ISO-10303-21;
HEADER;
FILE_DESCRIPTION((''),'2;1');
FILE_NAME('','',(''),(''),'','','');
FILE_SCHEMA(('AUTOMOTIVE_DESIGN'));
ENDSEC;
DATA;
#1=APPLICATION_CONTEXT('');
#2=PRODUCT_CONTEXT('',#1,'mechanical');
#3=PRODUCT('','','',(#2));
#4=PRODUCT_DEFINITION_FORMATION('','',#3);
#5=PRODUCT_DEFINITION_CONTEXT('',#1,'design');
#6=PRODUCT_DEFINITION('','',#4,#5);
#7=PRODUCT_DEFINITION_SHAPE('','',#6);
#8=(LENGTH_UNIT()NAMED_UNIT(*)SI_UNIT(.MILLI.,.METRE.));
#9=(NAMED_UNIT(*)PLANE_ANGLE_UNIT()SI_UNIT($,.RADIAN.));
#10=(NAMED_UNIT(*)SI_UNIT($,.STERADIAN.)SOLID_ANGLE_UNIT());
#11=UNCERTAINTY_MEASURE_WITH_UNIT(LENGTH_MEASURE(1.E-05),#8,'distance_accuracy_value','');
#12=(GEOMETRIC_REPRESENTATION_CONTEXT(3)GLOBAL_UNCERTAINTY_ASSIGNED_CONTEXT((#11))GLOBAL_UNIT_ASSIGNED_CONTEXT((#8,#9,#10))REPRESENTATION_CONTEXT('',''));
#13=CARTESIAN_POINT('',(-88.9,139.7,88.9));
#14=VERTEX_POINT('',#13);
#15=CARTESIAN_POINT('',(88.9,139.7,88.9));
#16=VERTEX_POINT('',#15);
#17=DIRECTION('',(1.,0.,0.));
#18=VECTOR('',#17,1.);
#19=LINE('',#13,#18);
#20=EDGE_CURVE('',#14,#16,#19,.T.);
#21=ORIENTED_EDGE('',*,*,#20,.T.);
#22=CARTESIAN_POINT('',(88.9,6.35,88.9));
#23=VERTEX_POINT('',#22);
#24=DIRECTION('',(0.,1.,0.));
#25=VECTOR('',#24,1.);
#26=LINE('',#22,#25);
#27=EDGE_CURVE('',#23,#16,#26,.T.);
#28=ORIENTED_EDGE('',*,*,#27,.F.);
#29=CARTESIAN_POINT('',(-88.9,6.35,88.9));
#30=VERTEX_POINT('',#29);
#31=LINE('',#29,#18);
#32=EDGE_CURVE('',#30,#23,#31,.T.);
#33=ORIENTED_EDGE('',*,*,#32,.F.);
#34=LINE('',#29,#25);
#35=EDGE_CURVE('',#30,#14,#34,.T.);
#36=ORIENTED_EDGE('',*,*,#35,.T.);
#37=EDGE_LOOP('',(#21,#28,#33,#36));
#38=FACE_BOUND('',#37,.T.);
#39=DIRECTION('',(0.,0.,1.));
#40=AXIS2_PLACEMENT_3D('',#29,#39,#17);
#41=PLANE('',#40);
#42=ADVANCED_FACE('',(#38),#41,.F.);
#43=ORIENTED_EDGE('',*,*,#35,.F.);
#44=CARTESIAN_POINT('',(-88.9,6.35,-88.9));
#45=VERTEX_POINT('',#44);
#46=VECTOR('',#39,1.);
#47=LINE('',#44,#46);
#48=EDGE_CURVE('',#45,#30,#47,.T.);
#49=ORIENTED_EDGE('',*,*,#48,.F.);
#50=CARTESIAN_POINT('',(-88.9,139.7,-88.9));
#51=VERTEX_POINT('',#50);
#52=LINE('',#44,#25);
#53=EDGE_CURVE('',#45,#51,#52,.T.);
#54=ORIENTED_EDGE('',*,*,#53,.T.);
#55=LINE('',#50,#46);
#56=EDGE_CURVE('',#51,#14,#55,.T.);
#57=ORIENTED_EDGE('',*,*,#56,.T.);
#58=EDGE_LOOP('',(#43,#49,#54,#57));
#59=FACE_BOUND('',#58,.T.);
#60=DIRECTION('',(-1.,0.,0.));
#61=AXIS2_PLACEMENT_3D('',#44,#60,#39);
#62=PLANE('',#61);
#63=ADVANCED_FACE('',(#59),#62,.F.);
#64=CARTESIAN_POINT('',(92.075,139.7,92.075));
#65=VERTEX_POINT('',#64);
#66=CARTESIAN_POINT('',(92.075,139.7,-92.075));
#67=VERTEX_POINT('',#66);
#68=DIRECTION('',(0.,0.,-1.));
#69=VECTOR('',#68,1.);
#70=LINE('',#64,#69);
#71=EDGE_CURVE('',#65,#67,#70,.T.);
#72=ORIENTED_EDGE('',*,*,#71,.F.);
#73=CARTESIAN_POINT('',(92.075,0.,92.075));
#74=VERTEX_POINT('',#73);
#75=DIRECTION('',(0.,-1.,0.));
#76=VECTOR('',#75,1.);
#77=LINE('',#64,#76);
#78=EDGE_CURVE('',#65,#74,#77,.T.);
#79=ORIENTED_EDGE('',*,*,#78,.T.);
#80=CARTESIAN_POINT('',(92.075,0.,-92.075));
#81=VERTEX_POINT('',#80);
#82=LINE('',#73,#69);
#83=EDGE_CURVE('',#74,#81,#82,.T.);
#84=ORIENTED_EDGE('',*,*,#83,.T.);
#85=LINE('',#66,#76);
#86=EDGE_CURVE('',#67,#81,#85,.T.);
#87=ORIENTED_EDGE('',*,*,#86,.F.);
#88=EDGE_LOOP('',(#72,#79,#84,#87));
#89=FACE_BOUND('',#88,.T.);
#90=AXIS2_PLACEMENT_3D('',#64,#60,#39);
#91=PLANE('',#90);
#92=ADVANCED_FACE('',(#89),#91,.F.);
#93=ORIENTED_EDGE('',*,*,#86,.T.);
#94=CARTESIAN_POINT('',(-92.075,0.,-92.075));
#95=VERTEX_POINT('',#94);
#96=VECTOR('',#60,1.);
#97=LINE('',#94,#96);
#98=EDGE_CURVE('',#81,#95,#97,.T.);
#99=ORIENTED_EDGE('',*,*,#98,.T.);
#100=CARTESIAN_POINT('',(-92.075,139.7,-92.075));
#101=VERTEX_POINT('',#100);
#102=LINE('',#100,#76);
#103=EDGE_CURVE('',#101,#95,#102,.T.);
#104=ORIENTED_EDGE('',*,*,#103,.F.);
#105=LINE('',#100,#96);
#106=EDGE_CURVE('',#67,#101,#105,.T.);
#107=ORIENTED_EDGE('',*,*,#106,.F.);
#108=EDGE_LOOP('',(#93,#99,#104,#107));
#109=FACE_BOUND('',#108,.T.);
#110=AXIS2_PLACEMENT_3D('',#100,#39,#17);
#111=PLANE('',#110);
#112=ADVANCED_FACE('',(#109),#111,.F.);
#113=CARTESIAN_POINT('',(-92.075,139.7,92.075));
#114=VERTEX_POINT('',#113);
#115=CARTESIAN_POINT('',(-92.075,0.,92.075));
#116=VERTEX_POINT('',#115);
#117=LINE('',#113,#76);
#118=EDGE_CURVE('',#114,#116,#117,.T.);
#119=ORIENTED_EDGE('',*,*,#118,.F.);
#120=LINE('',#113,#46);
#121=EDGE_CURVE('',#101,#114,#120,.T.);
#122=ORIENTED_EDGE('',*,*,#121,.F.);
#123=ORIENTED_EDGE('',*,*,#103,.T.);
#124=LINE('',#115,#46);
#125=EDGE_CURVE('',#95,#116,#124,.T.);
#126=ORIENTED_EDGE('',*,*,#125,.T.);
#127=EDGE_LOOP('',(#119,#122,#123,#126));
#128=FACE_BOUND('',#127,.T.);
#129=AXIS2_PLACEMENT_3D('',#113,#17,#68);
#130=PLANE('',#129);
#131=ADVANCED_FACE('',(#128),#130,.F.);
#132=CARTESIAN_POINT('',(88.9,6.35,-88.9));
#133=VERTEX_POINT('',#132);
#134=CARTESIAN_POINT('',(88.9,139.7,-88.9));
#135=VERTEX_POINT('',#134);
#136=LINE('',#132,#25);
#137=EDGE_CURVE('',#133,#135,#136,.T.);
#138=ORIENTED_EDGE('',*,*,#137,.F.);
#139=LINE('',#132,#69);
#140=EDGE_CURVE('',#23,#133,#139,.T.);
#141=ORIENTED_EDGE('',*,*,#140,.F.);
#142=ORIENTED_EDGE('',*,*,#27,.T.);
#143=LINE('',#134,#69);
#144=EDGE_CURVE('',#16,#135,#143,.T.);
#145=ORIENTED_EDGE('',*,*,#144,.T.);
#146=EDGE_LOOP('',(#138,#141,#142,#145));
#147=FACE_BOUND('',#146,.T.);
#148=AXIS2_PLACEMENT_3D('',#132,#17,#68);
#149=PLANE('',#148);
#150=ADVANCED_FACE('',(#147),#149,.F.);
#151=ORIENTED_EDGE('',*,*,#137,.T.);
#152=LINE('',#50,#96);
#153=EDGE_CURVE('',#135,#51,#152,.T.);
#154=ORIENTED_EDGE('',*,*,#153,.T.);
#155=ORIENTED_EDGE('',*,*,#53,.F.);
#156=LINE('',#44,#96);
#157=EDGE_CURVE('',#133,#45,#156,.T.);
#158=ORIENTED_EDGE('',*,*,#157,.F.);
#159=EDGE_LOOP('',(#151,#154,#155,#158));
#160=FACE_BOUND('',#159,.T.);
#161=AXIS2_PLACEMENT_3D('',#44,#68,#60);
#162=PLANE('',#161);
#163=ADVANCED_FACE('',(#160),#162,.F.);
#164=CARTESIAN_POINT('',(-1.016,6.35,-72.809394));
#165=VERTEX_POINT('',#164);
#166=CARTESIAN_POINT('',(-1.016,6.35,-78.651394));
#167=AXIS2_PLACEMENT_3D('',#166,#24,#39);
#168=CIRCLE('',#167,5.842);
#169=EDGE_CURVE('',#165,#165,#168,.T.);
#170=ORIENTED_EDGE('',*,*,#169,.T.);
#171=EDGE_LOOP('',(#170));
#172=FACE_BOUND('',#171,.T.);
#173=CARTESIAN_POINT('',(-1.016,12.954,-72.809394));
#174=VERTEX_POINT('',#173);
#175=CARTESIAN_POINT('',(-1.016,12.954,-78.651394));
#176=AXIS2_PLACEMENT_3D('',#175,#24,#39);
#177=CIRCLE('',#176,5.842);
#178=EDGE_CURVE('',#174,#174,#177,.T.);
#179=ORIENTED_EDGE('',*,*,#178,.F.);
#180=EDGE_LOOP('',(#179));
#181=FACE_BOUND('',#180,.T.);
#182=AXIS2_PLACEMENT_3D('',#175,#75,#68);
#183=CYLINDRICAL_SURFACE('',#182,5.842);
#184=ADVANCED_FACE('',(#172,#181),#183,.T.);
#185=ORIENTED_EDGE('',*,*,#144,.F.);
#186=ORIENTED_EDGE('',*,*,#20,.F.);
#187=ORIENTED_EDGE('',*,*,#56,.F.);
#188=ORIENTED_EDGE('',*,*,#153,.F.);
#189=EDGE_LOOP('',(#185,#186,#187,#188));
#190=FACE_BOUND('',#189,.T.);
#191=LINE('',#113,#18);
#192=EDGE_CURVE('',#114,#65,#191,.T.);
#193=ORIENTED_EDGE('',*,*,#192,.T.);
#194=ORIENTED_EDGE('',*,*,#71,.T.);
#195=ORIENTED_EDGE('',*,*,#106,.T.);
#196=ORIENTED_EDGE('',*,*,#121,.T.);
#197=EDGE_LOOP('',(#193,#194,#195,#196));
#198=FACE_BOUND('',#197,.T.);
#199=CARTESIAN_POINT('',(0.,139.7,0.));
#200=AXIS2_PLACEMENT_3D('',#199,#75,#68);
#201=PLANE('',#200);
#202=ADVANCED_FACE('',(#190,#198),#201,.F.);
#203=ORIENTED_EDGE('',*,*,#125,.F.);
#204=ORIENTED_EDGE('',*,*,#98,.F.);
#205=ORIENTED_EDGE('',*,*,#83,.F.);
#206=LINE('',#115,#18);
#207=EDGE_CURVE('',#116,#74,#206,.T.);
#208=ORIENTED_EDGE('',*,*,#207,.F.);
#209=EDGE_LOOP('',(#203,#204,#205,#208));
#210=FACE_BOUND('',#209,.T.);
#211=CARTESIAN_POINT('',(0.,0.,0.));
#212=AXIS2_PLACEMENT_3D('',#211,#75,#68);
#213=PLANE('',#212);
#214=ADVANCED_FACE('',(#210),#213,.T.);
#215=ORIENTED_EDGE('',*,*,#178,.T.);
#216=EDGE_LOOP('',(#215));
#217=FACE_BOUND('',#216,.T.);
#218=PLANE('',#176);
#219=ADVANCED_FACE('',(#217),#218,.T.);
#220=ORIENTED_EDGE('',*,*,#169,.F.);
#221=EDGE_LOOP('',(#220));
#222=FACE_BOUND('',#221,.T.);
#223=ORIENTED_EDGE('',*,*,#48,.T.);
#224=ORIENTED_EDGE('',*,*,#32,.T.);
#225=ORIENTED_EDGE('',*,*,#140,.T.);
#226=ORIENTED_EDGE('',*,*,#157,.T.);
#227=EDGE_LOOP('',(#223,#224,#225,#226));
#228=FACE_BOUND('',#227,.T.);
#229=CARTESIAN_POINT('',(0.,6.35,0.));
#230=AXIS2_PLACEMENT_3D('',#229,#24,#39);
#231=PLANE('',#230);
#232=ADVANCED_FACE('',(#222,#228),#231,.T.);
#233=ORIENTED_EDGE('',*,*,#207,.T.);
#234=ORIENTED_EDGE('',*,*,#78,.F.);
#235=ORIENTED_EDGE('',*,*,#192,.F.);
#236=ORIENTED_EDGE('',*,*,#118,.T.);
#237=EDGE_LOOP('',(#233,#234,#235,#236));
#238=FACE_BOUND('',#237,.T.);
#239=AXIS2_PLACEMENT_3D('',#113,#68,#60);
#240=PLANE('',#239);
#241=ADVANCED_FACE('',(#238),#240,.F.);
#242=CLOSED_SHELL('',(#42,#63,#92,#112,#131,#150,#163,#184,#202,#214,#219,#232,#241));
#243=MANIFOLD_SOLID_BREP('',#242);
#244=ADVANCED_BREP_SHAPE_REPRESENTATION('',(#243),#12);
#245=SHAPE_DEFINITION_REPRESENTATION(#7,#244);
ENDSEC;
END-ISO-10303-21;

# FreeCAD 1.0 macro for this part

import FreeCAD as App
import Part
import Sketcher

V = App.Vector
Q = App.Units.Quantity


def add_polygon(sketch, points):
    """Adds a closed chain of lines whose ends are joined by coincident constraints."""
    first, n = sketch.GeometryCount, len(points)
    for a, b in zip(points, points[1:] + points[:1]):
        sketch.addGeometry(Part.LineSegment(App.Vector(*a, 0), App.Vector(*b, 0)), False)
    for i in range(n):
        sketch.addConstraint(Sketcher.Constraint("Coincident", first + i, 2, first + (i + 1) % n, 1))

doc = App.newDocument("Part")
params = doc.addObject("Spreadsheet::Sheet", "Params")
for row, (alias, value) in enumerate([
    ("sketch1_width", "7.25 in"),
    ("pad1_length", "5.5 in"),
    ("sketch2_width", "7 in"),
    ("pocket1_length", "5.25 in"),
    ("sketch3_diameter", "0.46 in"),
    ("pad2_length", "0.26 in"),
], start=1):
    params.set(f"A{row}", alias)
    params.set(f"B{row}", "=" + value)
    params.setAlias(f"B{row}", alias)

body = doc.addObject("PartDesign::Body", "Body")

sketch1 = body.newObject("Sketcher::SketchObject", "Sketch")
sketch1.AttachmentSupport = (doc.getObject("XZ_Plane"), [""])
sketch1.MapMode = "FlatFace"
add_polygon(sketch1, [(-92, -92), (-92, 92), (92, 92), (92, -92)])
sketch1.addConstraint([
    Sketcher.Constraint("Vertical", 0),
    Sketcher.Constraint("Horizontal", 1),
    Sketcher.Constraint("Vertical", 2),
    Sketcher.Constraint("Horizontal", 3),
    Sketcher.Constraint("Symmetric", 0, 2, 2, 2, -1, 1),
    Sketcher.Constraint("Equal", 3, 0),
    Sketcher.Constraint("DistanceX", 1, 1, 1, 2, Q("7.25 in")),
])
sketch1.setExpression("Constraints[10]", "Params.sketch1_width")
pad1 = body.newObject("PartDesign::Pad", "Pad")
pad1.Profile = sketch1
pad1.setExpression("Length", "Params.pad1_length")
pad1.Reversed = True

sketch2 = body.newObject("Sketcher::SketchObject", "Sketch001")
sketch2.AttachmentSupport = (doc.getObject("XZ_Plane"), [""])
sketch2.MapMode = "FlatFace"
sketch2.AttachmentOffset = App.Placement(V(0, 0, -5.5 * 25.4), App.Rotation())
add_polygon(sketch2, [(-89, -89), (-89, 89), (89, 89), (89, -89)])
sketch2.addConstraint([
    Sketcher.Constraint("Vertical", 0),
    Sketcher.Constraint("Horizontal", 1),
    Sketcher.Constraint("Vertical", 2),
    Sketcher.Constraint("Horizontal", 3),
    Sketcher.Constraint("Symmetric", 0, 2, 2, 2, -1, 1),
    Sketcher.Constraint("Equal", 3, 0),
    Sketcher.Constraint("DistanceX", 1, 1, 1, 2, Q("7 in")),
])
sketch2.setExpression("Constraints[10]", "Params.sketch2_width")
pocket1 = body.newObject("PartDesign::Pocket", "Pocket")
pocket1.Profile = sketch2
pocket1.setExpression("Length", "Params.pocket1_length")
pocket1.Reversed = True

sketch3 = body.newObject("Sketcher::SketchObject", "Sketch002")
sketch3.AttachmentSupport = (doc.getObject("XZ_Plane"), [""])
sketch3.MapMode = "FlatFace"
sketch3.AttachmentOffset = App.Placement(V(0, 0, -0.25 * 25.4), App.Rotation())
sketch3.addGeometry(Part.Circle(V(-1, -79, 0), V(0, 0, 1), 6), False)
sketch3.addConstraint([
    Sketcher.Constraint("Diameter", 0, Q("0.46 in")),
    Sketcher.Constraint("DistanceX", 0, 3, -1, 1, Q("0.04 in")),
    Sketcher.Constraint("DistanceY", 0, 3, -1, 1, 78.651394),
])
sketch3.setExpression("Constraints[0]", "Params.sketch3_diameter")
pad2 = body.newObject("PartDesign::Pad", "Pad001")
pad2.Profile = sketch3
pad2.setExpression("Length", "Params.pad2_length")
pad2.Reversed = True

doc.recompute()
